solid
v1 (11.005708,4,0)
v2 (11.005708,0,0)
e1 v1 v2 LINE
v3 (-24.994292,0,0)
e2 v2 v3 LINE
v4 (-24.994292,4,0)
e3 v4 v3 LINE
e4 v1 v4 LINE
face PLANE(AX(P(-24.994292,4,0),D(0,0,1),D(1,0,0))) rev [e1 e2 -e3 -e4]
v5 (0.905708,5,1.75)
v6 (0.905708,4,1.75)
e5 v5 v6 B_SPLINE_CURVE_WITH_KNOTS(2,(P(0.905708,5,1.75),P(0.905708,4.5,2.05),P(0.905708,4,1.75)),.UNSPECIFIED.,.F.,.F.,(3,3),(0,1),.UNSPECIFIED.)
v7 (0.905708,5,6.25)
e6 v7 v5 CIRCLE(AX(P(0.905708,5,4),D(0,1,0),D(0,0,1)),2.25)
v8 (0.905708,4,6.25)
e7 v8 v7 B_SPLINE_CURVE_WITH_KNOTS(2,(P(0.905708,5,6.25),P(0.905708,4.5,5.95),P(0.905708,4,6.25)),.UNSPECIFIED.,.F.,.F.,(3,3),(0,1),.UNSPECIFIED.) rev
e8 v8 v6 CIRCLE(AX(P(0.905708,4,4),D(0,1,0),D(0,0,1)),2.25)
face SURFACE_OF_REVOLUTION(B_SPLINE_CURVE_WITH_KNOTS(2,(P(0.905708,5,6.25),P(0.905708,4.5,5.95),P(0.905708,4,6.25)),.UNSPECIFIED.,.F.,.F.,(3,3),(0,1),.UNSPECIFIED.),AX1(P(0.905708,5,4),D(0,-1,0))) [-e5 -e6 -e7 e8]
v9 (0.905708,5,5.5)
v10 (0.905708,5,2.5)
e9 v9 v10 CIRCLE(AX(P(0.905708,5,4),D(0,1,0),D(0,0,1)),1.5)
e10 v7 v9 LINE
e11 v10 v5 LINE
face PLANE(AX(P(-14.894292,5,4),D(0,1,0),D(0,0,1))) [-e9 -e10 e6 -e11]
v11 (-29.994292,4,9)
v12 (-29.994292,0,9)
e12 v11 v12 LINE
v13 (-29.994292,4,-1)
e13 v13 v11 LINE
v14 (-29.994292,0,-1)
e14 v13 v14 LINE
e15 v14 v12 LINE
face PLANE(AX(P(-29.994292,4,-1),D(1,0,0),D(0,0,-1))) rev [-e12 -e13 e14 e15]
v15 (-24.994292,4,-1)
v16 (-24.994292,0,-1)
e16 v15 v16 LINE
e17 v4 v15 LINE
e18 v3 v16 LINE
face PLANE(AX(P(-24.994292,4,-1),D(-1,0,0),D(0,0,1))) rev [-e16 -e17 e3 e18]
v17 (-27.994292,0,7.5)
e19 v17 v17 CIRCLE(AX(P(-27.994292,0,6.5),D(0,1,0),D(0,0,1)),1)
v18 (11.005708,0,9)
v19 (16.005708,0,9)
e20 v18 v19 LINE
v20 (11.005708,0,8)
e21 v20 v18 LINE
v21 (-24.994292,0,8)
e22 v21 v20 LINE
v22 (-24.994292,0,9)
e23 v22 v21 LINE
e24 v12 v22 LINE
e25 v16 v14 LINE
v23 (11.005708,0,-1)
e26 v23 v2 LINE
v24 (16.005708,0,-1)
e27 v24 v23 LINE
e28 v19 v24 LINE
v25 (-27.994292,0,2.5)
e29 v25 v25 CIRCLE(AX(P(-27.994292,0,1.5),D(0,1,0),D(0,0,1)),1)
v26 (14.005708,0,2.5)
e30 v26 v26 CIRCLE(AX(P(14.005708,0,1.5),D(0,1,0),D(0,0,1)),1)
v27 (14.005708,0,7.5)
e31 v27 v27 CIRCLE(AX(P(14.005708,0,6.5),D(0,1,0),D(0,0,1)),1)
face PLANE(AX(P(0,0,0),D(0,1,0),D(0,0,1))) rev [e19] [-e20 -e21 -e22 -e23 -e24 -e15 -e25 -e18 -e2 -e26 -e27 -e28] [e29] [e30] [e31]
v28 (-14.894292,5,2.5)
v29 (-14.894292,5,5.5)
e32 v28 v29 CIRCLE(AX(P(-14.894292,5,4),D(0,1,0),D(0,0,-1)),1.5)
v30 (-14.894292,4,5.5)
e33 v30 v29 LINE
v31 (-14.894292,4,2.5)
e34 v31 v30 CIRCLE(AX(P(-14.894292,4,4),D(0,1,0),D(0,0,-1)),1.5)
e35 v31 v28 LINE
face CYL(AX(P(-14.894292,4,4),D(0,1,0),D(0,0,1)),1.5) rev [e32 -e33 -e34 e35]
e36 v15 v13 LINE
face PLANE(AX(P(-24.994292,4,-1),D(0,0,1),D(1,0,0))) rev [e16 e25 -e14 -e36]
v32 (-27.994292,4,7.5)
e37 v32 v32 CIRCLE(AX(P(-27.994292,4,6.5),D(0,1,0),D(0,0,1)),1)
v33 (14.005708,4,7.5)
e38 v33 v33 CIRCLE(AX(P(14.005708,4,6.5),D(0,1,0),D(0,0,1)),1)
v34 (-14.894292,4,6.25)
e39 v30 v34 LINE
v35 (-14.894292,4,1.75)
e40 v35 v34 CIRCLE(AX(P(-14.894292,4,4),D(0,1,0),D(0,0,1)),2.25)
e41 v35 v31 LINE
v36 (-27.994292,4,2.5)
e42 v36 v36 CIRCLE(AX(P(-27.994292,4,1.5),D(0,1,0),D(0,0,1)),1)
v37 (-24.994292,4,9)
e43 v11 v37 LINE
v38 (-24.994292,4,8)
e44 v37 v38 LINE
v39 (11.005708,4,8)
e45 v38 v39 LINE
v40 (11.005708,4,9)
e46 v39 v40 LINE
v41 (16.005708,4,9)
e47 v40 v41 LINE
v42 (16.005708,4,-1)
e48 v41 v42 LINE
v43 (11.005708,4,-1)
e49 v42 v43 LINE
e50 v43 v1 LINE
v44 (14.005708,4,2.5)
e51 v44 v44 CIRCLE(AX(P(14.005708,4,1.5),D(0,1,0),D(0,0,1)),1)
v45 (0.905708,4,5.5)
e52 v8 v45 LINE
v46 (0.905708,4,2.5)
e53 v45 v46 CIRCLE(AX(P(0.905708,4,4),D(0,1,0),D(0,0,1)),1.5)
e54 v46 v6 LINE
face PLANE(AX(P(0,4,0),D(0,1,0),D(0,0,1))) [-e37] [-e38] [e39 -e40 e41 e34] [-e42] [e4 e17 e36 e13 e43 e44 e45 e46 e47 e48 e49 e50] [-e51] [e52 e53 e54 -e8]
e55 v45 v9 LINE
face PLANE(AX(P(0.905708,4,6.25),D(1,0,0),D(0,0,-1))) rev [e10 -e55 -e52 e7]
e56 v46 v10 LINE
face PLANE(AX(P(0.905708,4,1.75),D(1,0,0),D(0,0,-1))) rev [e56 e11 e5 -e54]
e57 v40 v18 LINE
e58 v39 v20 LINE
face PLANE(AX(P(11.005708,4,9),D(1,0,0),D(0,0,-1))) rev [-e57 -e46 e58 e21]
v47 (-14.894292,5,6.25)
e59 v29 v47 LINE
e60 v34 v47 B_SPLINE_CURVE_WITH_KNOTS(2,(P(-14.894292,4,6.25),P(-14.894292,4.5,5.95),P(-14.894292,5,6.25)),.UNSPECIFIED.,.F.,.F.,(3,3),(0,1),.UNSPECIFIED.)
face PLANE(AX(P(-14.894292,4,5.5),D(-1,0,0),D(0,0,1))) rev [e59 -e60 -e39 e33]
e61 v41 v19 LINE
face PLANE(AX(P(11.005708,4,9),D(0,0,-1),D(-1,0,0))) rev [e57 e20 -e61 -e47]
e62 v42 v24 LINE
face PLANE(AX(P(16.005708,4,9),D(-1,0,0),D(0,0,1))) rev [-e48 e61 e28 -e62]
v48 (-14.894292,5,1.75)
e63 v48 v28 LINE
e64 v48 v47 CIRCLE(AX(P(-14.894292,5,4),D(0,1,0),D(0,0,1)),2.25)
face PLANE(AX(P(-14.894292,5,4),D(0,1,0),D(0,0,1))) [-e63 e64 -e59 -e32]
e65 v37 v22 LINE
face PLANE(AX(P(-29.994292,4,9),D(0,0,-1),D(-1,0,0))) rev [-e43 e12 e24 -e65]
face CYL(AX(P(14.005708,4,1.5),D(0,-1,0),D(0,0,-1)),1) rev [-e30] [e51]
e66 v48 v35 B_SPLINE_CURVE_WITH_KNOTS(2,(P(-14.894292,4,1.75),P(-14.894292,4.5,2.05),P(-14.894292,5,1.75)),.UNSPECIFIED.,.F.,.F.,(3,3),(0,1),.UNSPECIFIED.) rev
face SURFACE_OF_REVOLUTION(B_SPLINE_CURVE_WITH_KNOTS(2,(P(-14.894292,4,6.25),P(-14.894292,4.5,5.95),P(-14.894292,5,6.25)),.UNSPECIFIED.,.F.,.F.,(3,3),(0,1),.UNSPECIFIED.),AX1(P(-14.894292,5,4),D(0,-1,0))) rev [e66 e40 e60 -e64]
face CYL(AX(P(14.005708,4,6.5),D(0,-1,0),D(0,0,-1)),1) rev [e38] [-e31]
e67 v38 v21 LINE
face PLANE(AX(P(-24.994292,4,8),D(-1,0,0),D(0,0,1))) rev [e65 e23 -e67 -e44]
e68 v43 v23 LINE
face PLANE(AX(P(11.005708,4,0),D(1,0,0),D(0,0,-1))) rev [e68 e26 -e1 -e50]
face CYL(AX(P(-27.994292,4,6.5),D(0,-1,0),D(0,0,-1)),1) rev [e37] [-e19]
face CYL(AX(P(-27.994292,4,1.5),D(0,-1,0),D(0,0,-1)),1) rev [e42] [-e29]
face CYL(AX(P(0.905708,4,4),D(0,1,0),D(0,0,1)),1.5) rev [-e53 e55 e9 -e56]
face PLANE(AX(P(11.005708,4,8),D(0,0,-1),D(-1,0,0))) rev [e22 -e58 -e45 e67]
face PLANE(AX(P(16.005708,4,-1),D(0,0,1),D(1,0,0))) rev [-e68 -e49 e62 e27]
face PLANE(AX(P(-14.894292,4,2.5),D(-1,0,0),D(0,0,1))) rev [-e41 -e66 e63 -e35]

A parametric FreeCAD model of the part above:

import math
import FreeCAD as App
import Part
import Sketcher

V = App.Vector
Q = App.Units.Quantity


def add_polygon(sketch, points):
    """Adds a closed chain of lines whose ends are joined by coincident constraints."""
    first, n = sketch.GeometryCount, len(points)
    for a, b in zip(points, points[1:] + points[:1]):
        sketch.addGeometry(Part.LineSegment(App.Vector(*a, 0), App.Vector(*b, 0)), False)
    for i in range(n):
        sketch.addConstraint(Sketcher.Constraint("Coincident", first + i, 2, first + (i + 1) % n, 1))

doc = App.newDocument("Part")
body = doc.addObject("PartDesign::Body", "Body")

# Sketch on XZ plane
sketch1 = body.newObject("Sketcher::SketchObject", "Sketch")
sketch1.AttachmentSupport = (doc.getObject("XZ_Plane"), [""])
sketch1.MapMode = "FlatFace"
add_polygon(sketch1, [(11, 0), (-25, 0), (-25, -1), (-30, -1), (-30, 9), (-25, 9), (-25, 8), (11, 8), (11, 9), (16, 9), (16, -1), (11, -1)])  # lines 0-11
sketch1.addGeometry(Part.Circle(V(14, 6.5, 0), V(0, 0, 1), 1), False)  # 12
sketch1.addGeometry(Part.Circle(V(-28, 6.5, 0), V(0, 0, 1), 1), False)  # 13
sketch1.addGeometry(Part.Circle(V(14, 1.5, 0), V(0, 0, 1), 1), False)  # 14
sketch1.addGeometry(Part.Circle(V(-28, 1.5, 0), V(0, 0, 1), 1), False)  # 15
sketch1.addConstraint([
    Sketcher.Constraint("Horizontal", 0),
    Sketcher.Constraint("Vertical", 1),
    Sketcher.Constraint("Horizontal", 2),
    Sketcher.Constraint("Vertical", 3),
    Sketcher.Constraint("Horizontal", 4),
    Sketcher.Constraint("Vertical", 5),
    Sketcher.Constraint("Horizontal", 6),
    Sketcher.Constraint("Vertical", 7),
    Sketcher.Constraint("Horizontal", 8),
    Sketcher.Constraint("Vertical", 9),
    Sketcher.Constraint("Horizontal", 10),
    Sketcher.Constraint("Vertical", 11),
    Sketcher.Constraint("Equal", 12, 13),
    Sketcher.Constraint("Equal", 13, 14),
    Sketcher.Constraint("Equal", 14, 15),
    Sketcher.Constraint("PointOnObject", 0, 2, -1),
    Sketcher.Constraint("Horizontal", 12, 3, 13, 3),
    Sketcher.Constraint("Horizontal", 14, 3, 15, 3),
    Sketcher.Constraint("Horizontal", 4, 2, 7, 2),
    Sketcher.Constraint("Horizontal", 2, 2, 9, 2),
    Sketcher.Constraint("Vertical", 12, 3, 14, 3),
    Sketcher.Constraint("Vertical", 13, 3, 15, 3),
    Sketcher.Constraint("Vertical", 1, 2, 4, 2),
    Sketcher.Constraint("Vertical", 7, 2, 10, 2),
    Sketcher.Constraint("Equal", 4, 8),
    Sketcher.Constraint("Equal", 1, 5),
    Sketcher.Constraint("Diameter", 12, Q("2 mm")),
    Sketcher.Constraint("DistanceX", 0, 2, 0, 1, Q("36 mm")),
    Sketcher.Constraint("DistanceX", 2, 2, 2, 1, Q("5 mm")),
    Sketcher.Constraint("DistanceY", 1, 2, 1, 1, Q("1 mm")),
    Sketcher.Constraint("DistanceY", 3, 1, 3, 2, Q("10 mm")),
    Sketcher.Constraint("DistanceX", 13, 3, 12, 3, Q("42 mm")),
    Sketcher.Constraint("DistanceY", 14, 3, 12, 3, Q("5 mm")),
    Sketcher.Constraint("DistanceX", 15, 3, 0, 2, Q("3 mm")),
    Sketcher.Constraint("DistanceY", -1, 1, 12, 3, Q("6.5 mm")),
    Sketcher.Constraint("DistanceX", -1, 1, 12, 3, Q("14.005708 mm")),
])
pad1 = body.newObject("PartDesign::Pad", "Pad")
pad1.Profile = sketch1
pad1.Length = 4
pad1.Reversed = True

# Sketch on XZ plane
sketch2 = body.newObject("Sketcher::SketchObject", "Sketch001")
sketch2.AttachmentSupport = (doc.getObject("XZ_Plane"), [""])
sketch2.MapMode = "FlatFace"
sketch2.AttachmentOffset = App.Placement(V(0, 0, -4), App.Rotation())
sketch2.addGeometry([
    Part.LineSegment(V(0.9, 1.8, 0), V(-14.9, 1.8, 0)),
    Part.ArcOfCircle(Part.Circle(V(-14.9, 4, 0), V(0, 0, 1), 2.2), math.radians(90), math.radians(270)),
    Part.LineSegment(V(-14.9, 6.2, 0), V(0.9, 6.2, 0)),
    Part.ArcOfCircle(Part.Circle(V(0.9, 4, 0), V(0, 0, 1), 2.2), math.radians(-90), math.radians(90)),
], False)
sketch2.addConstraint([
    Sketcher.Constraint("Tangent", 0, 2, 1, 2),
    Sketcher.Constraint("Tangent", 1, 1, 2, 1),
    Sketcher.Constraint("Tangent", 2, 2, 3, 2),
    Sketcher.Constraint("Tangent", 3, 1, 0, 1),
    Sketcher.Constraint("Horizontal", 0),
    Sketcher.Constraint("Horizontal", 2),
    Sketcher.Constraint("Radius", 1, Q("2.25 mm")),
    Sketcher.Constraint("DistanceX", 0, 2, 0, 1, Q("15.8 mm")),
    Sketcher.Constraint("DistanceY", -1, 1, 1, 3, Q("4 mm")),
    Sketcher.Constraint("DistanceX", 1, 3, -1, 1, Q("14.894292 mm")),
])
pad2 = body.newObject("PartDesign::Pad", "Pad001")
pad2.Profile = sketch2
pad2.Length = 1
pad2.Reversed = True

# Sketch on XZ plane
sketch3 = body.newObject("Sketcher::SketchObject", "Sketch002")
sketch3.AttachmentSupport = (doc.getObject("XZ_Plane"), [""])
sketch3.MapMode = "FlatFace"
sketch3.AttachmentOffset = App.Placement(V(0, 0, -5), App.Rotation())
sketch3.addGeometry([
    Part.LineSegment(V(-14.9, 1.8, 0), V(-14.9, 2.5, 0)),  # 0
    Part.ArcOfCircle(Part.Circle(V(-14.9, 4, 0), V(0, 0, 1), 1.5), math.radians(90), math.radians(270)),  # 1
    Part.LineSegment(V(-14.9, 5.5, 0), V(-14.9, 6.2, 0)),  # 2
    Part.LineSegment(V(-14.9, 6.2, 0), V(0.9, 6.2, 0)),  # 3
    Part.LineSegment(V(0.9, 6.2, 0), V(0.9, 5.5, 0)),  # 4
    Part.ArcOfCircle(Part.Circle(V(0.9, 4, 0), V(0, 0, 1), 1.5), math.radians(-90), math.radians(90)),  # 5
    Part.LineSegment(V(0.9, 2.5, 0), V(0.9, 1.8, 0)),  # 6
    Part.LineSegment(V(0.9, 1.8, 0), V(-14.9, 1.8, 0)),  # 7
], False)
sketch3.addConstraint([
    Sketcher.Constraint("Coincident", 0, 2, 1, 2),
    Sketcher.Constraint("Coincident", 1, 1, 2, 1),
    Sketcher.Constraint("Coincident", 2, 2, 3, 1),
    Sketcher.Constraint("Coincident", 3, 2, 4, 1),
    Sketcher.Constraint("Coincident", 4, 2, 5, 2),
    Sketcher.Constraint("Coincident", 5, 1, 6, 1),
    Sketcher.Constraint("Coincident", 6, 2, 7, 1),
    Sketcher.Constraint("Coincident", 7, 2, 0, 1),
    Sketcher.Constraint("Vertical", 0),
    Sketcher.Constraint("Vertical", 2),
    Sketcher.Constraint("Horizontal", 3),
    Sketcher.Constraint("Vertical", 4),
    Sketcher.Constraint("Vertical", 6),
    Sketcher.Constraint("Horizontal", 7),
    Sketcher.Constraint("Equal", 1, 5),
    Sketcher.Constraint("Horizontal", 1, 3, 5, 3),
    Sketcher.Constraint("Vertical", 1, 3, 0, 2),
    Sketcher.Constraint("Vertical", 0, 2, 1, 1),
    Sketcher.Constraint("Vertical", 5, 3, 3, 2),
    Sketcher.Constraint("Vertical", 4, 2, 5, 1),
    Sketcher.Constraint("Equal", 0, 2),
    Sketcher.Constraint("Radius", 1, Q("1.5 mm")),
    Sketcher.Constraint("DistanceX", 3, 1, 3, 2, Q("15.8 mm")),
    Sketcher.Constraint("DistanceY", -1, 1, 1, 3, Q("4 mm")),
    Sketcher.Constraint("DistanceY", 0, 1, 0, 2, Q("0.75 mm")),
    Sketcher.Constraint("DistanceX", 1, 3, -1, 1, Q("14.894292 mm")),
])
pocket1 = body.newObject("PartDesign::Pocket", "Pocket")
pocket1.Profile = sketch3
pocket1.Length = 1
pocket1.Reversed = True

# Sketch on YZ plane
sketch4 = body.newObject("Sketcher::SketchObject", "Sketch003")
sketch4.AttachmentSupport = (doc.getObject("YZ_Plane"), [""])
sketch4.MapMode = "FlatFace"
sketch4.AttachmentOffset = App.Placement(V(0, 0, -14.894292), App.Rotation())
sketch4.addGeometry([
    Part.LineSegment(V(5, 6.25, 0), V(4, 6.25, 0)),
    Part.BSplineCurve([V(5, 6.25, 0), V(4.5, 5.95, 0), V(4, 6.25, 0)], [3, 3], [0, 1], False, 2, [1, 1, 1], False),
], False)
sketch4.addConstraint([
    Sketcher.Constraint("Block", 1),
    Sketcher.Constraint("Coincident", 0, 1, 1, 1),
    Sketcher.Constraint("Coincident", 1, 2, 0, 2),
])

# Sketch on XZ plane
sketch5 = body.newObject("Sketcher::SketchObject", "Sketch004")
sketch5.AttachmentSupport = (doc.getObject("XZ_Plane"), [""])
sketch5.MapMode = "FlatFace"
sketch5.AttachmentOffset = App.Placement(V(0, 0, -5), App.Rotation())
sketch5.addGeometry(Part.Circle(V(-14.9, 4, 0), V(0, 0, 1), 2.2), False)
sketch5.addConstraint([
    Sketcher.Constraint("Diameter", 0, Q("4.5 mm")),
    Sketcher.Constraint("DistanceY", -1, 1, 0, 3, Q("4 mm")),
    Sketcher.Constraint("DistanceX", 0, 3, -1, 1, Q("14.894292 mm")),
])
doc.recompute()

subtractivepipe = body.newObject("PartDesign::SubtractivePipe", "SubtractivePipe")
subtractivepipe.Profile = sketch4
subtractivepipe.Spine = (sketch5, ["Edge1"])

# Sketch on YZ plane
sketch6 = body.newObject("Sketcher::SketchObject", "Sketch005")
sketch6.AttachmentSupport = (doc.getObject("YZ_Plane"), [""])
sketch6.MapMode = "FlatFace"
sketch6.AttachmentOffset = App.Placement(V(0, 0, 0.905708), App.Rotation())
sketch6.addGeometry([
    Part.LineSegment(V(4, 6.25, 0), V(5, 6.25, 0)),
    Part.BSplineCurve([V(4, 6.25, 0), V(4.5, 5.95, 0), V(5, 6.25, 0)], [3, 3], [0, 1], False, 2, [1, 1, 1], False),
], False)
sketch6.addConstraint([
    Sketcher.Constraint("Block", 1),
    Sketcher.Constraint("Coincident", 0, 1, 1, 1),
    Sketcher.Constraint("Coincident", 1, 2, 0, 2),
])

# Sketch on XZ plane
sketch7 = body.newObject("Sketcher::SketchObject", "Sketch006")
sketch7.AttachmentSupport = (doc.getObject("XZ_Plane"), [""])
sketch7.MapMode = "FlatFace"
sketch7.AttachmentOffset = App.Placement(V(0, 0, -5), App.Rotation())
sketch7.addGeometry(Part.Circle(V(0.9, 4, 0), V(0, 0, 1), 2.2), False)
sketch7.addConstraint([
    Sketcher.Constraint("Diameter", 0, Q("4.5 mm")),
    Sketcher.Constraint("DistanceY", -1, 1, 0, 3, Q("4 mm")),
    Sketcher.Constraint("DistanceX", -1, 1, 0, 3, Q("0.905708 mm")),
])
doc.recompute()

subtractivepipe2 = body.newObject("PartDesign::SubtractivePipe", "SubtractivePipe001")
subtractivepipe2.Profile = sketch6
subtractivepipe2.Spine = (sketch7, ["Edge1"])

doc.recompute()
